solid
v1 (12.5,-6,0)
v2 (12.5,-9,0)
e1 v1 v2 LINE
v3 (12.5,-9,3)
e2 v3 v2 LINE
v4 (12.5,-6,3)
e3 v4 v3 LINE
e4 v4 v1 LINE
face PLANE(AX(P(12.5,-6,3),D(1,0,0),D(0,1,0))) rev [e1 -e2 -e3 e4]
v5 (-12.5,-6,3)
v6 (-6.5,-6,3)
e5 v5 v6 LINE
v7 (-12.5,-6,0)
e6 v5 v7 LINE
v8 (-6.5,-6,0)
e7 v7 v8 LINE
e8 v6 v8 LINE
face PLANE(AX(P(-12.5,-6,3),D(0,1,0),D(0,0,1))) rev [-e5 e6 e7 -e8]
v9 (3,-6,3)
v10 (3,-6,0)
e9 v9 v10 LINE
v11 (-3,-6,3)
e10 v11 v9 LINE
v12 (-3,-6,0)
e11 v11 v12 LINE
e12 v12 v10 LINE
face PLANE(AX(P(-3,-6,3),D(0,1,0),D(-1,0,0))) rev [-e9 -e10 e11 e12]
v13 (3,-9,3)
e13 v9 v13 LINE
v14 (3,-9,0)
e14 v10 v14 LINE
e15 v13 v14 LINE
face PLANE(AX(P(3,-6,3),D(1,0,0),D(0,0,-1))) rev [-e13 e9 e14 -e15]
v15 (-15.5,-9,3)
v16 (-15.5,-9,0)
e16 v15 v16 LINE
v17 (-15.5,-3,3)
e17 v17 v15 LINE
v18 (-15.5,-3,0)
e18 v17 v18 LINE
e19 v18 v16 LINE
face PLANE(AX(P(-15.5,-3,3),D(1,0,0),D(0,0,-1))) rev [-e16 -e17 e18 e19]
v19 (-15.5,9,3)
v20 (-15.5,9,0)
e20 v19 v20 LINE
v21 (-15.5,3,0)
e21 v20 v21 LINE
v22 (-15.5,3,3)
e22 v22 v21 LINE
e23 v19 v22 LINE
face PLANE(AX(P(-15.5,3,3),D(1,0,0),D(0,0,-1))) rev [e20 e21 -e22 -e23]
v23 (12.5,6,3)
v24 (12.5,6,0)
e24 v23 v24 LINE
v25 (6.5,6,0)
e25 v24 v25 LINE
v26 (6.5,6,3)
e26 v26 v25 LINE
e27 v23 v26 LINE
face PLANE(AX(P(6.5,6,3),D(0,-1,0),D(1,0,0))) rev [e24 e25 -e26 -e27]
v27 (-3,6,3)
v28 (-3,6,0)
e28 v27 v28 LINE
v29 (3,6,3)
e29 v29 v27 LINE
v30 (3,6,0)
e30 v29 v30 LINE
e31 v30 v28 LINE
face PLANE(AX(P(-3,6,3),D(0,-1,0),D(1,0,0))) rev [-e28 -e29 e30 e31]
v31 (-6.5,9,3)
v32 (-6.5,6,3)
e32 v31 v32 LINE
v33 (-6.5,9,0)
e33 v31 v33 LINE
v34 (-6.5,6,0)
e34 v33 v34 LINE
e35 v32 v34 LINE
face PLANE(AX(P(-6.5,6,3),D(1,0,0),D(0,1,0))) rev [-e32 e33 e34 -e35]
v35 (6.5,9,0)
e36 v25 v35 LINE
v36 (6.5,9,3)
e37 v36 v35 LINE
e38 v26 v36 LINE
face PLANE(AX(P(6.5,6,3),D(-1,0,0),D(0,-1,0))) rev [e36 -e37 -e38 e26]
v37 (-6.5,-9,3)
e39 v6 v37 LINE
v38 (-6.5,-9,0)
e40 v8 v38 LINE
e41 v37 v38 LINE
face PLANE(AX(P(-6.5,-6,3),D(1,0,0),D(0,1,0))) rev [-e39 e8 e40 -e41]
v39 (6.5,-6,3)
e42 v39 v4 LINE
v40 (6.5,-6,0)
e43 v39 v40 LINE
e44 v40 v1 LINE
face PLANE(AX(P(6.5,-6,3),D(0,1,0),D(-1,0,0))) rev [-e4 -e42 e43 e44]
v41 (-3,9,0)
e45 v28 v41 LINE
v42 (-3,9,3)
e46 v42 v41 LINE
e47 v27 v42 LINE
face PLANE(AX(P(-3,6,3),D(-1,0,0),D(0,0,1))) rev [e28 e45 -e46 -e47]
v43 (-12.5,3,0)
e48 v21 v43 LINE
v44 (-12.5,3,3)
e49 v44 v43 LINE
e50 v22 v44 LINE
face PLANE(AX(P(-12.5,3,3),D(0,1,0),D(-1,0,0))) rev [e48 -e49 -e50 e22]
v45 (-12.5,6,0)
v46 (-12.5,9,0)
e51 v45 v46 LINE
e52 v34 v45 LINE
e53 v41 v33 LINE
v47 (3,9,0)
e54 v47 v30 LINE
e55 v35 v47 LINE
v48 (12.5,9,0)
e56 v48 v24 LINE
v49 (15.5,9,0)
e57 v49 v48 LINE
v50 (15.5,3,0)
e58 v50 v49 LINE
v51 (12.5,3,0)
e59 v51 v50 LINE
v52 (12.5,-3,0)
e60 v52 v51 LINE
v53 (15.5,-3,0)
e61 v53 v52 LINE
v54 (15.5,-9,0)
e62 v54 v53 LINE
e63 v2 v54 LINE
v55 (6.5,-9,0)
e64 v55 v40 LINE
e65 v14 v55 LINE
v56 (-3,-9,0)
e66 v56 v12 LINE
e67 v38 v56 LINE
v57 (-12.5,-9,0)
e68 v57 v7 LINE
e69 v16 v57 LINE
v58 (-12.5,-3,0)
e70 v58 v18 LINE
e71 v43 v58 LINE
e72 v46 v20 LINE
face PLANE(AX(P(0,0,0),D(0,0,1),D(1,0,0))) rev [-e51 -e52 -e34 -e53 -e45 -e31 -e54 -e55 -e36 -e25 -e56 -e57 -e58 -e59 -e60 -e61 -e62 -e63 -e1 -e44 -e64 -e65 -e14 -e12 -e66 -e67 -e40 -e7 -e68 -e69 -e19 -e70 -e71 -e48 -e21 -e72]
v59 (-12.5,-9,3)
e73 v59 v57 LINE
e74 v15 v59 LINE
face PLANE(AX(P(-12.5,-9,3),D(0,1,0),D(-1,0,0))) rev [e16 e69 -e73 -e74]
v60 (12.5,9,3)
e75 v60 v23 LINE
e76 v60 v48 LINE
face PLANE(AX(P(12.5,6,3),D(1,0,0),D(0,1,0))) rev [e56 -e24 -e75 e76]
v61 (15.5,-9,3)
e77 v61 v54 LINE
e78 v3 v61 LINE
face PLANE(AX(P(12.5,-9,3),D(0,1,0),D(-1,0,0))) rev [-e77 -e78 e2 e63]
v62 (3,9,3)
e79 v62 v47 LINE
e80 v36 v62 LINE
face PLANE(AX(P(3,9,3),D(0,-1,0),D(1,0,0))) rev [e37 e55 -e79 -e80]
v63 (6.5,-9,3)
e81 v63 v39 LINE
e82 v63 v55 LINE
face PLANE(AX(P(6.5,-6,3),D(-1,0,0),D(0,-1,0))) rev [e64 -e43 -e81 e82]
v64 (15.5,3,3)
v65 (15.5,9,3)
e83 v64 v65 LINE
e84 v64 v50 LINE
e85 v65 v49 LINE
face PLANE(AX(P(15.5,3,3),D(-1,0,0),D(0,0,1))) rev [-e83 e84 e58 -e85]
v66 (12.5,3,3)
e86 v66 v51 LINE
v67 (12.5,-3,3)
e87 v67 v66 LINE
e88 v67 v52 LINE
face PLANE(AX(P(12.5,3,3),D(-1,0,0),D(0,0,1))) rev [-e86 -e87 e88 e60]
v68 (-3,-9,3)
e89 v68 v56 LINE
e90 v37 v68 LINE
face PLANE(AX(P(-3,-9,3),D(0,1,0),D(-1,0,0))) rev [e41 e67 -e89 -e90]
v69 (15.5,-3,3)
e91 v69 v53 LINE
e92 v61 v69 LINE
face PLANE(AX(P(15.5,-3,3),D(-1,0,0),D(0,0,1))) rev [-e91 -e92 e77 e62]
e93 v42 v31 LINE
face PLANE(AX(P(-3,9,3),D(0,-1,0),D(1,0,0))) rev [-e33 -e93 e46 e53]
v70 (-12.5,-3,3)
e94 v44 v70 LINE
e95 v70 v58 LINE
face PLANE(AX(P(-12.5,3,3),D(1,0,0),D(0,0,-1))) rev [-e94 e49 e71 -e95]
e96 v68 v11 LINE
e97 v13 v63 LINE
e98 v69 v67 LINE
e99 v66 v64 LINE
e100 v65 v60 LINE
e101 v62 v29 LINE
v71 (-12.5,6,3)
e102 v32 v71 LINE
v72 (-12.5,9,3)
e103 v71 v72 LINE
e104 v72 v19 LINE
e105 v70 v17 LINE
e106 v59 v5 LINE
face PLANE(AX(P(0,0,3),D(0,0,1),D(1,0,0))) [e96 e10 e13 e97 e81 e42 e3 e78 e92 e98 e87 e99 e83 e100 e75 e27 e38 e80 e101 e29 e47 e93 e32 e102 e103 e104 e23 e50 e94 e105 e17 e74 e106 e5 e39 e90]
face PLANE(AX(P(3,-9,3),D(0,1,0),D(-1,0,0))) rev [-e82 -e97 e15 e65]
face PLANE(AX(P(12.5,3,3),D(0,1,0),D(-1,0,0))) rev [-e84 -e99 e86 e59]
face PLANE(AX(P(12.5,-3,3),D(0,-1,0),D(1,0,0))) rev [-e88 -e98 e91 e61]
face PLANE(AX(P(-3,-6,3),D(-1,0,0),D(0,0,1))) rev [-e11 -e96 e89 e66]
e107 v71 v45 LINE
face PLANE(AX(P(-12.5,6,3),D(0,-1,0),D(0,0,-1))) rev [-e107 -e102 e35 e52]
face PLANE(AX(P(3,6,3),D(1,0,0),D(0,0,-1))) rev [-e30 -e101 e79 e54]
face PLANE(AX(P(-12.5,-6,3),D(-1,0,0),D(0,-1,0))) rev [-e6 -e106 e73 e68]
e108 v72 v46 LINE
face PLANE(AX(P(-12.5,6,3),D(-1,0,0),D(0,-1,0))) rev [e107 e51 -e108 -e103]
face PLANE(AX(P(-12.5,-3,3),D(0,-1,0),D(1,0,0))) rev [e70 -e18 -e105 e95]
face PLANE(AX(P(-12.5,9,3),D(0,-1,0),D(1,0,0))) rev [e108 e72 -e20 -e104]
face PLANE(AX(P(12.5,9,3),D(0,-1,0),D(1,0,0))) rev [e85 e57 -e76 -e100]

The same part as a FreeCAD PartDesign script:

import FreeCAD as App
import Part
import Sketcher
from FreeCAD import Vector


def add_polygon(sketch, points):
    """Adds a closed chain of lines whose ends are joined by coincident constraints."""
    first, n = sketch.GeometryCount, len(points)
    for a, b in zip(points, points[1:] + points[:1]):
        sketch.addGeometry(Part.LineSegment(App.Vector(*a, 0), App.Vector(*b, 0)), False)
    for i in range(n):
        sketch.addConstraint(Sketcher.Constraint("Coincident", first + i, 2, first + (i + 1) % n, 1))

doc = App.newDocument("Part")
body = doc.addObject("PartDesign::Body", "Body")

sketch1 = doc.addObject("Sketcher::SketchObject", "Sketch")
body.addObject(sketch1)
sketch1.AttachmentSupport = (doc.XY_Plane, [""])
sketch1.MapMode = "FlatFace"
add_polygon(sketch1, [(-15.5, 9), (-15.5, 3), (-12.5, 3), (-12.5, -3), (-15.5, -3), (-15.5, -9), (-12.5, -9), (-12.5, -6), (-6.5, -6), (-6.5, -9), (-3, -9), (-3, -6), (3, -6), (3, -9), (6.5, -9), (6.5, -6), (12.5, -6), (12.5, -9), (15.5, -9), (15.5, -3), (12.5, -3), (12.5, 3), (15.5, 3), (15.5, 9), (12.5, 9), (12.5, 6), (6.5, 6), (6.5, 9), (3, 9), (3, 6), (-3, 6), (-3, 9), (-6.5, 9), (-6.5, 6), (-12.5, 6), (-12.5, 9)])
sketch1.addConstraint(Sketcher.Constraint("Vertical", 0))
sketch1.addConstraint(Sketcher.Constraint("Horizontal", 1))
sketch1.addConstraint(Sketcher.Constraint("Vertical", 2))
sketch1.addConstraint(Sketcher.Constraint("Horizontal", 3))
sketch1.addConstraint(Sketcher.Constraint("Vertical", 4))
sketch1.addConstraint(Sketcher.Constraint("Horizontal", 5))
sketch1.addConstraint(Sketcher.Constraint("Vertical", 6))
sketch1.addConstraint(Sketcher.Constraint("Horizontal", 7))
sketch1.addConstraint(Sketcher.Constraint("Vertical", 8))
sketch1.addConstraint(Sketcher.Constraint("Horizontal", 9))
sketch1.addConstraint(Sketcher.Constraint("Vertical", 10))
sketch1.addConstraint(Sketcher.Constraint("Horizontal", 11))
sketch1.addConstraint(Sketcher.Constraint("Vertical", 12))
sketch1.addConstraint(Sketcher.Constraint("Horizontal", 13))
sketch1.addConstraint(Sketcher.Constraint("Vertical", 14))
sketch1.addConstraint(Sketcher.Constraint("Horizontal", 15))
sketch1.addConstraint(Sketcher.Constraint("Vertical", 16))
sketch1.addConstraint(Sketcher.Constraint("Horizontal", 17))
sketch1.addConstraint(Sketcher.Constraint("Vertical", 18))
sketch1.addConstraint(Sketcher.Constraint("Horizontal", 19))
sketch1.addConstraint(Sketcher.Constraint("Vertical", 20))
sketch1.addConstraint(Sketcher.Constraint("Horizontal", 21))
sketch1.addConstraint(Sketcher.Constraint("Vertical", 22))
sketch1.addConstraint(Sketcher.Constraint("Horizontal", 23))
sketch1.addConstraint(Sketcher.Constraint("Vertical", 24))
sketch1.addConstraint(Sketcher.Constraint("Horizontal", 25))
sketch1.addConstraint(Sketcher.Constraint("Vertical", 26))
sketch1.addConstraint(Sketcher.Constraint("Horizontal", 27))
sketch1.addConstraint(Sketcher.Constraint("Vertical", 28))
sketch1.addConstraint(Sketcher.Constraint("Horizontal", 29))
sketch1.addConstraint(Sketcher.Constraint("Vertical", 30))
sketch1.addConstraint(Sketcher.Constraint("Horizontal", 31))
sketch1.addConstraint(Sketcher.Constraint("Vertical", 32))
sketch1.addConstraint(Sketcher.Constraint("Horizontal", 33))
sketch1.addConstraint(Sketcher.Constraint("Vertical", 34))
sketch1.addConstraint(Sketcher.Constraint("Horizontal", 35))
sketch1.addConstraint(Sketcher.Constraint("Symmetric", 0, 2, 18, 2, -1, 1))
sketch1.addConstraint(Sketcher.Constraint("Symmetric", 2, 2, 20, 2, -1, 1))
sketch1.addConstraint(Sketcher.Constraint("Symmetric", 4, 2, 22, 2, -1, 1))
sketch1.addConstraint(Sketcher.Constraint("Symmetric", 6, 2, 24, 2, -1, 1))
sketch1.addConstraint(Sketcher.Constraint("Symmetric", 8, 2, 26, 2, -1, 1))
sketch1.addConstraint(Sketcher.Constraint("Symmetric", 10, 2, 28, 2, -1, 1))
sketch1.addConstraint(Sketcher.Constraint("Symmetric", 12, 2, 30, 2, -1, 1))
sketch1.addConstraint(Sketcher.Constraint("Symmetric", 14, 2, 32, 2, -1, 1))
sketch1.addConstraint(Sketcher.Constraint("Symmetric", 16, 2, 34, 2, -1, 1))
sketch1.addConstraint(Sketcher.Constraint("Symmetric", 9, 2, 12, 2, -2))
sketch1.addConstraint(Sketcher.Constraint("Symmetric", 7, 2, 14, 2, -2))
sketch1.addConstraint(Sketcher.Constraint("Symmetric", 5, 2, 16, 2, -2))
sketch1.addConstraint(Sketcher.Constraint("Symmetric", 3, 2, 18, 2, -2))
sketch1.addConstraint(Sketcher.Constraint("Horizontal", 5, 2, 8, 2))
sketch1.addConstraint(Sketcher.Constraint("Horizontal", 7, 2, 10, 2))
sketch1.addConstraint(Sketcher.Constraint("Vertical", 2, 2, 5, 2))
sketch1.addConstraint(Sketcher.Constraint("Equal", 7, 11))
sketch1.addConstraint(Sketcher.Constraint("Equal", 33, 0))
sketch1.addConstraint(Sketcher.Constraint("Equal", 0, 2))
sketch1.addConstraint(Sketcher.Constraint("Equal", 35, 6))
sketch1.addConstraint(Sketcher.Constraint("DistanceX", 1, 1, 1, 2, 3.0))
sketch1.addConstraint(Sketcher.Constraint("DistanceX", 7, 1, 7, 2, 6.0))
sketch1.addConstraint(Sketcher.Constraint("DistanceX", 9, 1, 9, 2, 3.5))
pad1 = doc.addObject("PartDesign::Pad", "Pad")
body.addObject(pad1)
pad1.Profile = sketch1
pad1.Length = 3

doc.recompute()
